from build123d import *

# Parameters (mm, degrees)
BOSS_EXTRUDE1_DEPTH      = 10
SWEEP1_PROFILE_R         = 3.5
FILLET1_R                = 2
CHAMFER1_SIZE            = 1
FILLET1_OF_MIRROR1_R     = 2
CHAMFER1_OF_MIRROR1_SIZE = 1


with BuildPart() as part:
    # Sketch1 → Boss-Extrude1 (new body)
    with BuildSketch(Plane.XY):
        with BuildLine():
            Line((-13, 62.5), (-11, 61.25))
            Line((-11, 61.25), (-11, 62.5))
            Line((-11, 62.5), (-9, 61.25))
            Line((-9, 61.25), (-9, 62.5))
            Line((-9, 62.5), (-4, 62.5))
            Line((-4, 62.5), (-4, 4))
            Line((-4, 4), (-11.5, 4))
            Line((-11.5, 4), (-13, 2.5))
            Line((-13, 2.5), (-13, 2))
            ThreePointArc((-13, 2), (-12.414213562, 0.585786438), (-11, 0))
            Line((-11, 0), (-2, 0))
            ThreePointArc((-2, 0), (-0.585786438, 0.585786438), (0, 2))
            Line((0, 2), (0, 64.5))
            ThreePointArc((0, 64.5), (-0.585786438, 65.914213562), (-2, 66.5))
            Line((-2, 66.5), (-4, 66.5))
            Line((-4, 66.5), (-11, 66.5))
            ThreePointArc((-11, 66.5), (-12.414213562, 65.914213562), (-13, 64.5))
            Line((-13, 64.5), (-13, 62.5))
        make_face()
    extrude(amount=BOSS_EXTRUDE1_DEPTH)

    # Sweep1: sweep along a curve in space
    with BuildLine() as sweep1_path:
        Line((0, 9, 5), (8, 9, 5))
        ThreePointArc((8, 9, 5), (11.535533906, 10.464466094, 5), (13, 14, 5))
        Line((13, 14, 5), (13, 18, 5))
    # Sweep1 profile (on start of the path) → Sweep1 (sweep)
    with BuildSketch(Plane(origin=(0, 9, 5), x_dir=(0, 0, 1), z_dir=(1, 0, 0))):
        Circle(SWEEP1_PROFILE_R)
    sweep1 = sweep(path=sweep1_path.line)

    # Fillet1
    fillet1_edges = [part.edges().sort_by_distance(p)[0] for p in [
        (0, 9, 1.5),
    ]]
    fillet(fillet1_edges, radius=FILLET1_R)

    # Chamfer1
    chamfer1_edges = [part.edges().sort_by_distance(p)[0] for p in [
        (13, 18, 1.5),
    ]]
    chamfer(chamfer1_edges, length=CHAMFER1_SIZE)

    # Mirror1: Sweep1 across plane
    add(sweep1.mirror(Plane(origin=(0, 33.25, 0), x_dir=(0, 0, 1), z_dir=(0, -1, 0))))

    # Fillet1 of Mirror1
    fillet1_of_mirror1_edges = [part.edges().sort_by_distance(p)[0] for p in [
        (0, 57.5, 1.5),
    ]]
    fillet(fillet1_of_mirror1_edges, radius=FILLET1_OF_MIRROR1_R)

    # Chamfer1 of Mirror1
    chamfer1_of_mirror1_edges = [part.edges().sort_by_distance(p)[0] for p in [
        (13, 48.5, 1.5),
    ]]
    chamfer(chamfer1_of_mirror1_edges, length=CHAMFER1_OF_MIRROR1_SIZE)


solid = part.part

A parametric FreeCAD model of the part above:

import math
import FreeCAD as App
import Part
import Sketcher
from FreeCAD import Vector
Q = App.Units.Quantity


def edges_at(feature, points):
    """Names of the edges that pass closest to the given points."""
    edges = feature.Shape.Edges
    near = lambda p: min(range(len(edges)), key=lambda i: edges[i].distToShape(Part.Vertex(*p))[0])
    return sorted({f"Edge{near(p) + 1}" for p in points})

doc = App.newDocument("Part")
body = doc.addObject("PartDesign::Body", "Body")

# Sketch on XY plane
sketch1 = doc.addObject("Sketcher::SketchObject", "Sketch")
body.addObject(sketch1)
sketch1.AttachmentSupport = (doc.XY_Plane, [""])
sketch1.MapMode = "FlatFace"
sketch1.addGeometry([
    Part.LineSegment(Vector(-13, 62.5, 0), Vector(-11, 61.2, 0)),  # 0
    Part.LineSegment(Vector(-11, 61.2, 0), Vector(-11, 62.5, 0)),  # 1
    Part.LineSegment(Vector(-11, 62.5, 0), Vector(-9, 61.2, 0)),  # 2
    Part.LineSegment(Vector(-9, 61.2, 0), Vector(-9, 62.5, 0)),  # 3
    Part.LineSegment(Vector(-9, 62.5, 0), Vector(-4, 62.5, 0)),  # 4
    Part.LineSegment(Vector(-4, 62.5, 0), Vector(-4, 4, 0)),  # 5
    Part.LineSegment(Vector(-4, 4, 0), Vector(-11.5, 4, 0)),  # 6
    Part.LineSegment(Vector(-11.5, 4, 0), Vector(-13, 2.5, 0)),  # 7
    Part.LineSegment(Vector(-13, 2.5, 0), Vector(-13, 2, 0)),  # 8
    Part.ArcOfCircle(Part.Circle(Vector(-11, 2, 0), Vector(0, 0, 1), 2), math.radians(-180), math.radians(-90)),  # 9
    Part.LineSegment(Vector(-11, 0, 0), Vector(-2, 0, 0)),  # 10
    Part.ArcOfCircle(Part.Circle(Vector(-2, 2, 0), Vector(0, 0, 1), 2), math.radians(-90), math.radians(0)),  # 11
    Part.LineSegment(Vector(0, 2, 0), Vector(0, 64.5, 0)),  # 12
    Part.ArcOfCircle(Part.Circle(Vector(-2, 64.5, 0), Vector(0, 0, 1), 2), math.radians(0), math.radians(90)),  # 13
    Part.LineSegment(Vector(-2, 66.5, 0), Vector(-11, 66.5, 0)),  # 14
    Part.ArcOfCircle(Part.Circle(Vector(-11, 64.5, 0), Vector(0, 0, 1), 2), math.radians(90), math.radians(180)),  # 15
    Part.LineSegment(Vector(-13, 64.5, 0), Vector(-13, 62.5, 0)),  # 16
], False)
sketch1.addConstraint([
    Sketcher.Constraint("Coincident", 0, 2, 1, 1),
    Sketcher.Constraint("Coincident", 1, 2, 2, 1),
    Sketcher.Constraint("Coincident", 2, 2, 3, 1),
    Sketcher.Constraint("Coincident", 3, 2, 4, 1),
    Sketcher.Constraint("Coincident", 4, 2, 5, 1),
    Sketcher.Constraint("Coincident", 5, 2, 6, 1),
    Sketcher.Constraint("Coincident", 6, 2, 7, 1),
    Sketcher.Constraint("Coincident", 7, 2, 8, 1),
    Sketcher.Constraint("Tangent", 8, 2, 9, 1),
    Sketcher.Constraint("Tangent", 9, 2, 10, 1),
    Sketcher.Constraint("Tangent", 10, 2, 11, 1),
    Sketcher.Constraint("Tangent", 11, 2, 12, 1),
    Sketcher.Constraint("Tangent", 12, 2, 13, 1),
    Sketcher.Constraint("Tangent", 13, 2, 14, 1),
    Sketcher.Constraint("Tangent", 14, 2, 15, 1),
    Sketcher.Constraint("Tangent", 15, 2, 16, 1),
    Sketcher.Constraint("Coincident", 16, 2, 0, 1),
    Sketcher.Constraint("Vertical", 1),
    Sketcher.Constraint("Vertical", 3),
    Sketcher.Constraint("Horizontal", 4),
    Sketcher.Constraint("Vertical", 5),
    Sketcher.Constraint("Horizontal", 6),
    Sketcher.Constraint("Vertical", 8),
    Sketcher.Constraint("Horizontal", 10),
    Sketcher.Constraint("Vertical", 12),
    Sketcher.Constraint("Horizontal", 14),
    Sketcher.Constraint("Vertical", 16),
    Sketcher.Constraint("Equal", 9, 11),
    Sketcher.Constraint("Equal", 11, 13),
    Sketcher.Constraint("Equal", 13, 15),
    Sketcher.Constraint("PointOnObject", 9, 2, -1),
    Sketcher.Constraint("PointOnObject", 11, 2, -2),
    Sketcher.Constraint("Parallel", 0, 2),
    Sketcher.Constraint("Horizontal", 0, 2, 2, 2),
    Sketcher.Constraint("Horizontal", 1, 2, 3, 2),
    Sketcher.Constraint("Horizontal", 4, 2, 16, 2),
    Sketcher.Constraint("Vertical", 9, 3, 15, 3),
    Sketcher.Constraint("Vertical", 15, 3, 0, 2),
    Sketcher.Constraint("Radius", 9, 2.0),
    Sketcher.Constraint("DistanceX", 4, 1, 4, 2, 5.0),
    Sketcher.Constraint("DistanceX", 10, 1, 10, 2, 9.0),
    Sketcher.Constraint("DistanceY", 16, 2, 16, 1, 2.0),
    Sketcher.Constraint("Angle", 7, Q("-135 deg")),
    Sketcher.Constraint("DistanceX", 6, 2, 6, 1, 7.5),
    Sketcher.Constraint("DistanceY", 5, 2, 5, 1, 58.5),
    Sketcher.Constraint("DistanceY", 8, 2, 8, 1, 0.5),
    Sketcher.Constraint("DistanceY", 1, 1, 1, 2, 1.25),
])
pad1 = doc.addObject("PartDesign::Pad", "Pad")
body.addObject(pad1)
pad1.Profile = sketch1
pad1.Length = 10

# Sketch on YZ plane
sketch2 = doc.addObject("Sketcher::SketchObject", "Sketch001")
body.addObject(sketch2)
sketch2.AttachmentSupport = (doc.YZ_Plane, [""])
sketch2.MapMode = "FlatFace"
sketch2.addGeometry(Part.Circle(Vector(9, 5, 0), Vector(0, 0, 1), 3.5), False)
sketch2.addConstraint([
    Sketcher.Constraint("Diameter", 0, 7.0),
    Sketcher.Constraint("DistanceX", -1, 1, 0, 3, 9.0),
    Sketcher.Constraint("DistanceY", -1, 1, 0, 3, 5.0),
])

# Sketch on XY plane
sketch3 = doc.addObject("Sketcher::SketchObject", "Sketch002")
body.addObject(sketch3)
sketch3.AttachmentSupport = (doc.XY_Plane, [""])
sketch3.MapMode = "FlatFace"
sketch3.AttachmentOffset = App.Placement(Vector(0, 0, 5), App.Rotation())
sketch3.addGeometry([
    Part.LineSegment(Vector(0, 9, 0), Vector(8, 9, 0)),
    Part.ArcOfCircle(Part.Circle(Vector(8, 14, 0), Vector(0, 0, 1), 5), math.radians(-90), math.radians(0)),
    Part.LineSegment(Vector(13, 14, 0), Vector(13, 18, 0)),
], False)
sketch3.addConstraint([
    Sketcher.Constraint("Tangent", 0, 2, 1, 1),
    Sketcher.Constraint("Tangent", 1, 2, 2, 1),
    Sketcher.Constraint("Horizontal", 0),
    Sketcher.Constraint("Vertical", 2),
    Sketcher.Constraint("PointOnObject", 0, 1, -2),
    Sketcher.Constraint("Radius", 1, 5.0),
    Sketcher.Constraint("DistanceX", 0, 1, 0, 2, 8.0),
    Sketcher.Constraint("DistanceY", 2, 1, 2, 2, 4.0),
    Sketcher.Constraint("DistanceY", -1, 1, 1, 3, 14.0),
])
doc.recompute()

additivepipe = doc.addObject("PartDesign::AdditivePipe", "AdditivePipe")
body.addObject(additivepipe)
additivepipe.Profile = sketch2
additivepipe.Spine = (sketch3, ["Edge1", "Edge2", "Edge3"])
doc.recompute()

fillet = doc.addObject("PartDesign::Fillet", "Fillet")
body.addObject(fillet)
fillet.Base = (additivepipe, edges_at(additivepipe, [(0, 9, 1.5)]))
fillet.Radius = 2
doc.recompute()

chamfer = doc.addObject("PartDesign::Chamfer", "Chamfer")
body.addObject(chamfer)
chamfer.Base = (fillet, edges_at(fillet, [(13, 18, 1.5)]))
chamfer.Size = 1
doc.recompute()

datumplane = doc.addObject("PartDesign::Plane", "DatumPlane")
body.addObject(datumplane)
datumplane.AttachmentSupport = (doc.XZ_Plane, [""])
datumplane.MapMode = "FlatFace"
datumplane.AttachmentOffset = App.Placement(Vector(0, 0, -33.25), App.Rotation())
mirrored = doc.addObject("PartDesign::Mirrored", "Mirrored")
body.addObject(mirrored)
mirrored.Originals = [additivepipe]
mirrored.MirrorPlane = (datumplane, [""])
body.Tip = mirrored
doc.recompute()

fillet2 = doc.addObject("PartDesign::Fillet", "Fillet001")
body.addObject(fillet2)
fillet2.Base = (mirrored, edges_at(mirrored, [(0, 57.5, 1.5)]))
fillet2.Radius = 2
doc.recompute()

chamfer2 = doc.addObject("PartDesign::Chamfer", "Chamfer001")
body.addObject(chamfer2)
chamfer2.Base = (fillet2, edges_at(fillet2, [(13, 48.5, 1.5)]))
chamfer2.Size = 1

doc.recompute()
